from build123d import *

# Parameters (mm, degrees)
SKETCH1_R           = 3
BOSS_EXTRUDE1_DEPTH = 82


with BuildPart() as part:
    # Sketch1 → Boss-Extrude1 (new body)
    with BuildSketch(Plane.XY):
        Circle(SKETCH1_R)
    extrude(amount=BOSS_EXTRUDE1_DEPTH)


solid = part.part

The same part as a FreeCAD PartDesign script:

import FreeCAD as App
import Part
import Sketcher

doc = App.newDocument("Part")
body = doc.addObject("PartDesign::Body", "Body")

sketch1 = body.newObject("Sketcher::SketchObject", "Sketch")
sketch1.AttachmentSupport = (doc.getObject("XY_Plane"), [""])
sketch1.MapMode = "FlatFace"
sketch1.addGeometry(Part.Circle(App.Vector(0, 0, 0), App.Vector(0, 0, 1), 3), False)
sketch1.addConstraint(Sketcher.Constraint("Coincident", 0, 3, -1, 1))
sketch1.addConstraint(Sketcher.Constraint("Diameter", 0, 6.0))
pad1 = body.newObject("PartDesign::Pad", "Pad")
pad1.Profile = sketch1
pad1.Length = 82

doc.recompute()
